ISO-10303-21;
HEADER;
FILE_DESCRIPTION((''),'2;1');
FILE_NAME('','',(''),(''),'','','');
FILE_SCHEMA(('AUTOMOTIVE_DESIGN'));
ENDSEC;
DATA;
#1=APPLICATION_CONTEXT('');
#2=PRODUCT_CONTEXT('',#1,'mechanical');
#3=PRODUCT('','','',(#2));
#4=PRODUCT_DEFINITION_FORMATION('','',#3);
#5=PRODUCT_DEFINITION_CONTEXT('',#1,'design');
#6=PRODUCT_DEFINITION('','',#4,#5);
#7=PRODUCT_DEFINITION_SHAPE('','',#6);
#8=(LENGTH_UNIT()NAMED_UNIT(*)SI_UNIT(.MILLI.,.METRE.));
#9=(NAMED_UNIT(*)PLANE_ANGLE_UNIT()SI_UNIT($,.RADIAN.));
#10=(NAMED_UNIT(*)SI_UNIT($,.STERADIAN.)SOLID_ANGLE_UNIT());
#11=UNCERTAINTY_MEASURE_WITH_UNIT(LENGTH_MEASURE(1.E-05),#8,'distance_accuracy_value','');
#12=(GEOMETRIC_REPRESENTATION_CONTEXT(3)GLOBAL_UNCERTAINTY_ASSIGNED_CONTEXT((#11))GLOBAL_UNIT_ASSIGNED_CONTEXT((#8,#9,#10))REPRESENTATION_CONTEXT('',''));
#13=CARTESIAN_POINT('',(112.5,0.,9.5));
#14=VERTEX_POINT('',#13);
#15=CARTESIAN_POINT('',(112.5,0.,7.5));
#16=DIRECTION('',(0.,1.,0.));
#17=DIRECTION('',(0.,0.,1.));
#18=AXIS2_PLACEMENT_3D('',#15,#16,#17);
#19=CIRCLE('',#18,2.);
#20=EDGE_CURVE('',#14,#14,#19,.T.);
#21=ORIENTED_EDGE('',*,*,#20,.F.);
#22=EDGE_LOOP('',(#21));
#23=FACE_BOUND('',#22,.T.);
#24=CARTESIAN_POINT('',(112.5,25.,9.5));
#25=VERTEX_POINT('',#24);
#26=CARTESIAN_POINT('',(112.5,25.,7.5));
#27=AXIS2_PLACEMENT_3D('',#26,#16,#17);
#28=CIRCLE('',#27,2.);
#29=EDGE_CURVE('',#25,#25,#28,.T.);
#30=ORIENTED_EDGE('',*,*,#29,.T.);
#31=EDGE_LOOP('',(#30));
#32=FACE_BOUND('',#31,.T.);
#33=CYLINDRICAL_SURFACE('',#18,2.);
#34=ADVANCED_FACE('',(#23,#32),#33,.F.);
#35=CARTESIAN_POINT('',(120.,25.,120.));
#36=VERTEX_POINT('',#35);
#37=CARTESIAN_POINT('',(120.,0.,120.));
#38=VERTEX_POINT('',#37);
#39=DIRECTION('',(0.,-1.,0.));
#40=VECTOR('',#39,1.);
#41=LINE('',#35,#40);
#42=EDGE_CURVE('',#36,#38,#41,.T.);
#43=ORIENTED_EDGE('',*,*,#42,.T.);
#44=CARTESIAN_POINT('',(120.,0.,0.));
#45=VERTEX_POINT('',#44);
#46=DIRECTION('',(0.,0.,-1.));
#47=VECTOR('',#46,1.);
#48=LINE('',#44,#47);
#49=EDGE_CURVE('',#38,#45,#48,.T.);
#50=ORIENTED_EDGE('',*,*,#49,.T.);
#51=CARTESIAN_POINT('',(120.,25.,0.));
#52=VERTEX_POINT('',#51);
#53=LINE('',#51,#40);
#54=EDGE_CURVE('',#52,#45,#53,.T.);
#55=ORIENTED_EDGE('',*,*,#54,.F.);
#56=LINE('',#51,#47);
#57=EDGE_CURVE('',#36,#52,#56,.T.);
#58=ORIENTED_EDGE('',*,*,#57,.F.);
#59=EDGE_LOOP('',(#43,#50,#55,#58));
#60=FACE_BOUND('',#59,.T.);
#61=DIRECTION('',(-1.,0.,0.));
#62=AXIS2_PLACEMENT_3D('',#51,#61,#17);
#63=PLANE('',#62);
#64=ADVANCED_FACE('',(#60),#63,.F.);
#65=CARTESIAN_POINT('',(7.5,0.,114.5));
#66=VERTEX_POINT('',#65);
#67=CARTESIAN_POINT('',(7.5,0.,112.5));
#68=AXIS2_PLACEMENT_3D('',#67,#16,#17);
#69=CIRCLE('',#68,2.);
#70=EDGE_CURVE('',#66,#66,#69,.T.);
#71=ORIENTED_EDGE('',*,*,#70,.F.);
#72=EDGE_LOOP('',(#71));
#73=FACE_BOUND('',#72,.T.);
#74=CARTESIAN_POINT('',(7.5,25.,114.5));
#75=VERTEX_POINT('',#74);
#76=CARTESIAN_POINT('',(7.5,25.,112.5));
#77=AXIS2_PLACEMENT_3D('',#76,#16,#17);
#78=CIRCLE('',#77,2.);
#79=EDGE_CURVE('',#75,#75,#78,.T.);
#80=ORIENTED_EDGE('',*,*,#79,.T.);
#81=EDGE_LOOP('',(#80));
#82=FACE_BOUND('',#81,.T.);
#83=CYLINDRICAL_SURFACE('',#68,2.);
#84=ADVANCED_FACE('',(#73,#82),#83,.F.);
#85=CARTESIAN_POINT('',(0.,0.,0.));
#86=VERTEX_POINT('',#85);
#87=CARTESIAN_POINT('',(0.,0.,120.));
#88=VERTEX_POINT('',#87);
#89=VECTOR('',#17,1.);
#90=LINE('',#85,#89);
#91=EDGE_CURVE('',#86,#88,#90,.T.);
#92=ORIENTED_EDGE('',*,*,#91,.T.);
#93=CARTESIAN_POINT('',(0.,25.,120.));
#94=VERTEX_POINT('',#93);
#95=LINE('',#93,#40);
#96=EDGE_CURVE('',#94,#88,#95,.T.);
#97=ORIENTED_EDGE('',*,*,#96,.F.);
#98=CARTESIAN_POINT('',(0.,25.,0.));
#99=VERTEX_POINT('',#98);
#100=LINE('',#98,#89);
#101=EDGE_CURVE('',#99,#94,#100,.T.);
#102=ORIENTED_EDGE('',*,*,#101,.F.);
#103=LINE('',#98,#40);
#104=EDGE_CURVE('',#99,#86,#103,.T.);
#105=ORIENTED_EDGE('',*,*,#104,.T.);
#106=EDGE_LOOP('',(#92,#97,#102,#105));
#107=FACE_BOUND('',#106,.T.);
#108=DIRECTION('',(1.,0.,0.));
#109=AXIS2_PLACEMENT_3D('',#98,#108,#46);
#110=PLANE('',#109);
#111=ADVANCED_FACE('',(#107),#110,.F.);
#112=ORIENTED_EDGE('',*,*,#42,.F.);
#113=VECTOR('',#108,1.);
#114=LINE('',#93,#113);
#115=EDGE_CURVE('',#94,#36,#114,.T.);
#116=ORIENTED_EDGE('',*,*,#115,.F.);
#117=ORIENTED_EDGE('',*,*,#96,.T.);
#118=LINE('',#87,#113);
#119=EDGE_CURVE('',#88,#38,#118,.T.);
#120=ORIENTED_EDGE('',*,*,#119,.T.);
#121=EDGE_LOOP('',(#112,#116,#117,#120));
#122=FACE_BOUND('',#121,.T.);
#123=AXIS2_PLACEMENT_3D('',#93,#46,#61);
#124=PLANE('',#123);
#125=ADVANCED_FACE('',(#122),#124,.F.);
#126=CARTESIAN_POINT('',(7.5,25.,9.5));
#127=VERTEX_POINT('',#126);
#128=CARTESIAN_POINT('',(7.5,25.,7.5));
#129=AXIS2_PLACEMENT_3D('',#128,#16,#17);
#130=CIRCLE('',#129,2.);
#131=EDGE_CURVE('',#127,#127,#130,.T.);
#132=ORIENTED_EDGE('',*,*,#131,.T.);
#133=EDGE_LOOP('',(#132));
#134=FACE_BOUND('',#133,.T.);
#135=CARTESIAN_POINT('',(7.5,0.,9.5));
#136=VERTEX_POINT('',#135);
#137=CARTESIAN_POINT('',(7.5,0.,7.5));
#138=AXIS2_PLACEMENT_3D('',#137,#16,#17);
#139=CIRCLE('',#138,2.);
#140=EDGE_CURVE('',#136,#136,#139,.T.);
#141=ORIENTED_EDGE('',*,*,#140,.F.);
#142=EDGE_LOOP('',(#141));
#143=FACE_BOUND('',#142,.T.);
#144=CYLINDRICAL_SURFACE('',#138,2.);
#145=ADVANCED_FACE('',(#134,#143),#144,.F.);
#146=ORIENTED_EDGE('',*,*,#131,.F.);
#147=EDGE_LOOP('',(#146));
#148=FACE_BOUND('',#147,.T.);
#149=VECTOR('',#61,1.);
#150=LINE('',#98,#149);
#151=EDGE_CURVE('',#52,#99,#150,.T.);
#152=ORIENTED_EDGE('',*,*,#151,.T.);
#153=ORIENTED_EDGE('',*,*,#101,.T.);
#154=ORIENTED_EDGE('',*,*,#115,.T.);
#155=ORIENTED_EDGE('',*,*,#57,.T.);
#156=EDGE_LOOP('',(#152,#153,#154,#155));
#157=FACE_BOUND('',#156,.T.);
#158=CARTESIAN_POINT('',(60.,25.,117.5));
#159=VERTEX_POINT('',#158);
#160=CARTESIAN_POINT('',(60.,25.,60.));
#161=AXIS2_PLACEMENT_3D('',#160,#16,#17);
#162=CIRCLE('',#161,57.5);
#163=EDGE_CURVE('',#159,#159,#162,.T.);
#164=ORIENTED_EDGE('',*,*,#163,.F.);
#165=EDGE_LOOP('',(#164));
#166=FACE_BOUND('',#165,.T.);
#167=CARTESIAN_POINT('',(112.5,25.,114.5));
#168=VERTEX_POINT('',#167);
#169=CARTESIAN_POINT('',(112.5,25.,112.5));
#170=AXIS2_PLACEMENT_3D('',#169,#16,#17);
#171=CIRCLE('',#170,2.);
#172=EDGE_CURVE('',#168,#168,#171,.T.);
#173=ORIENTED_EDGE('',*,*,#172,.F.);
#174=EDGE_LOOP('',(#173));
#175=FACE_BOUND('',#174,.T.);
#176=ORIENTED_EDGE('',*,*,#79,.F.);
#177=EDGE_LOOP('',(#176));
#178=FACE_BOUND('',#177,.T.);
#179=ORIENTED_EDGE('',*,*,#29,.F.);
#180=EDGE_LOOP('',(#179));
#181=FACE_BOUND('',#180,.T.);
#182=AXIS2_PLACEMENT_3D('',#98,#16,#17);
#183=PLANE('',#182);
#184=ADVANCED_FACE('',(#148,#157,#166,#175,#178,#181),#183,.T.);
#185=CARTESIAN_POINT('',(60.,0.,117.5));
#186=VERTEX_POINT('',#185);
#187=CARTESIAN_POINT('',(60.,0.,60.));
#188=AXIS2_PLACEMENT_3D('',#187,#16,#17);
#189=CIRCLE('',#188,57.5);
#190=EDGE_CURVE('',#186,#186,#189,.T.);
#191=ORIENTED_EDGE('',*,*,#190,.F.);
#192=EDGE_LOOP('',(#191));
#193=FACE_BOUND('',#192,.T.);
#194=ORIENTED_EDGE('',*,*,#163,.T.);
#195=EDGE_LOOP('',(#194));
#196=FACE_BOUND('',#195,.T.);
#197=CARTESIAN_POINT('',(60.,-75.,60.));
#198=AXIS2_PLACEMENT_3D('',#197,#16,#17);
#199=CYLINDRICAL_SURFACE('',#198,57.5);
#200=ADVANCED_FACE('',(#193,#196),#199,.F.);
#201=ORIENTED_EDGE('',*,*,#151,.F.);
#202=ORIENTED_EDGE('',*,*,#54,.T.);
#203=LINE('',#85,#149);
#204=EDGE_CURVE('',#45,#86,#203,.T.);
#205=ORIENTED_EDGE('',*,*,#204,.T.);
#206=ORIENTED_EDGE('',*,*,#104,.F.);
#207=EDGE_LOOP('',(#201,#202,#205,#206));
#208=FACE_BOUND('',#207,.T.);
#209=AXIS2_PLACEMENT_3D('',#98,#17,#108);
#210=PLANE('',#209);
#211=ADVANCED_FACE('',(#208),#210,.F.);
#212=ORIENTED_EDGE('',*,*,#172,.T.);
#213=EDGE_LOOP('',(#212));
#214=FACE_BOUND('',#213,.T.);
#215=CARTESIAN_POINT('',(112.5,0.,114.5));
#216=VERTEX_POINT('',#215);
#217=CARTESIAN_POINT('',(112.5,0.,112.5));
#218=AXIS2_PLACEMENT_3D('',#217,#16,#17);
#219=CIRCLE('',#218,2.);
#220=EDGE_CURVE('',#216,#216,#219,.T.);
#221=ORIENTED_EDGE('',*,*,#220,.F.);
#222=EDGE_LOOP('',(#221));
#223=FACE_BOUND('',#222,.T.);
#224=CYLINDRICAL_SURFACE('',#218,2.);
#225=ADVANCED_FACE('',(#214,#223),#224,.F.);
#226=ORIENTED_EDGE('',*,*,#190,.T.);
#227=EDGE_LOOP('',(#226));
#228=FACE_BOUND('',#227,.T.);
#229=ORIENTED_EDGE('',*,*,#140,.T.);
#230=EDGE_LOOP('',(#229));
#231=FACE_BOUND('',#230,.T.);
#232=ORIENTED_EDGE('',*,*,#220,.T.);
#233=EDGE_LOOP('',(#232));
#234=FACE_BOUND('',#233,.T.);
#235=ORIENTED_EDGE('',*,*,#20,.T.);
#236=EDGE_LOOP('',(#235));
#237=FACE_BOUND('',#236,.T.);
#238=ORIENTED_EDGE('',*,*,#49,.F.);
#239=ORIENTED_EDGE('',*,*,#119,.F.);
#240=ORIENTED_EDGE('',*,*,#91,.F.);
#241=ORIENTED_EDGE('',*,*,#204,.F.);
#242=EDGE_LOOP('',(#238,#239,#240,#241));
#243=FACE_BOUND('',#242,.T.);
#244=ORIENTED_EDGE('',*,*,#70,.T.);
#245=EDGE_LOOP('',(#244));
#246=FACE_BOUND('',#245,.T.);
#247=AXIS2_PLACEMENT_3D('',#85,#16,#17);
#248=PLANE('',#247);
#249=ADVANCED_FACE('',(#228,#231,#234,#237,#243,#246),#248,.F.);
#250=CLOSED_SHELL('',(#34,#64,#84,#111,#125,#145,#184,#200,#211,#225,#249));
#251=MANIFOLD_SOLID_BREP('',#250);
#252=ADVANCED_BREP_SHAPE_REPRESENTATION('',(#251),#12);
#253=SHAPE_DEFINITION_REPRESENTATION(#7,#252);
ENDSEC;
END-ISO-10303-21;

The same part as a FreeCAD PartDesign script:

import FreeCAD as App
import Part
import Sketcher

V = App.Vector
Q = App.Units.Quantity


def add_polygon(sketch, points):
    """Adds a closed chain of lines whose ends are joined by coincident constraints."""
    first, n = sketch.GeometryCount, len(points)
    for a, b in zip(points, points[1:] + points[:1]):
        sketch.addGeometry(Part.LineSegment(App.Vector(*a, 0), App.Vector(*b, 0)), False)
    for i in range(n):
        sketch.addConstraint(Sketcher.Constraint("Coincident", first + i, 2, first + (i + 1) % n, 1))

doc = App.newDocument("Part")
body = doc.addObject("PartDesign::Body", "Body")

# Sketch on XZ plane
sketch1 = body.newObject("Sketcher::SketchObject", "Sketch")
sketch1.AttachmentSupport = (doc.getObject("XZ_Plane"), [""])
sketch1.MapMode = "FlatFace"
add_polygon(sketch1, [(0, 0), (0, 120), (120, 120), (120, 0)])  # lines 0-3
sketch1.addConstraint(Sketcher.Constraint("Vertical", 0))
sketch1.addConstraint(Sketcher.Constraint("Horizontal", 1))
sketch1.addConstraint(Sketcher.Constraint("Vertical", 2))
sketch1.addConstraint(Sketcher.Constraint("Horizontal", 3))
sketch1.addConstraint(Sketcher.Constraint("Coincident", 3, 2, -1, 1))
sketch1.addConstraint(Sketcher.Constraint("Equal", 3, 0))
sketch1.addConstraint(Sketcher.Constraint("DistanceX", 1, 1, 1, 2, Q("120 mm")))
pad1 = body.newObject("PartDesign::Pad", "Pad")
pad1.Profile = sketch1
pad1.Length = 25
pad1.Reversed = True

# Sketch on XZ plane
sketch2 = body.newObject("Sketcher::SketchObject", "Sketch001")
sketch2.AttachmentSupport = (doc.getObject("XZ_Plane"), [""])
sketch2.MapMode = "FlatFace"
sketch2.AttachmentOffset = App.Placement(V(0, 0, -25), App.Rotation())
sketch2.addGeometry(Part.Circle(V(7.5, 112.5, 0), V(0, 0, 1), 2), False)
sketch2.addGeometry(Part.Circle(V(112.5, 112.5, 0), V(0, 0, 1), 2), False)
sketch2.addGeometry(Part.Circle(V(112.5, 7.5, 0), V(0, 0, 1), 2), False)
sketch2.addGeometry(Part.Circle(V(7.5, 7.5, 0), V(0, 0, 1), 2), False)
sketch2.addConstraint(Sketcher.Constraint("Equal", 0, 1))
sketch2.addConstraint(Sketcher.Constraint("Equal", 1, 2))
sketch2.addConstraint(Sketcher.Constraint("Equal", 2, 3))
sketch2.addConstraint(Sketcher.Constraint("Horizontal", 0, 3, 1, 3))
sketch2.addConstraint(Sketcher.Constraint("Horizontal", 2, 3, 3, 3))
sketch2.addConstraint(Sketcher.Constraint("Vertical", 1, 3, 2, 3))
sketch2.addConstraint(Sketcher.Constraint("Vertical", 0, 3, 3, 3))
sketch2.addConstraint(Sketcher.Constraint("Diameter", 0, Q("4 mm")))
sketch2.addConstraint(Sketcher.Constraint("DistanceX", 0, 3, 1, 3, Q("105 mm")))
sketch2.addConstraint(Sketcher.Constraint("DistanceY", 2, 3, 1, 3, Q("105 mm")))
sketch2.addConstraint(Sketcher.Constraint("DistanceX", -1, 1, 0, 3, Q("7.5 mm")))
sketch2.addConstraint(Sketcher.Constraint("DistanceY", -1, 1, 0, 3, Q("112.5 mm")))
pocket1 = body.newObject("PartDesign::Pocket", "Pocket")
pocket1.Profile = sketch2
pocket1.Type = "ThroughAll"
pocket1.Reversed = True

# Sketch on XZ plane
sketch3 = body.newObject("Sketcher::SketchObject", "Sketch002")
sketch3.AttachmentSupport = (doc.getObject("XZ_Plane"), [""])
sketch3.MapMode = "FlatFace"
sketch3.AttachmentOffset = App.Placement(V(0, 0, -25), App.Rotation())
sketch3.addGeometry(Part.Circle(V(60, 60, 0), V(0, 0, 1), 57.5), False)
sketch3.addConstraint(Sketcher.Constraint("Diameter", 0, Q("115 mm")))
sketch3.addConstraint(Sketcher.Constraint("DistanceX", -1, 1, 0, 3, Q("60 mm")))
sketch3.addConstraint(Sketcher.Constraint("DistanceY", -1, 1, 0, 3, Q("60 mm")))
pocket2 = body.newObject("PartDesign::Pocket", "Pocket001")
pocket2.Profile = sketch3
pocket2.Length = 100
pocket2.Reversed = True

doc.recompute()
